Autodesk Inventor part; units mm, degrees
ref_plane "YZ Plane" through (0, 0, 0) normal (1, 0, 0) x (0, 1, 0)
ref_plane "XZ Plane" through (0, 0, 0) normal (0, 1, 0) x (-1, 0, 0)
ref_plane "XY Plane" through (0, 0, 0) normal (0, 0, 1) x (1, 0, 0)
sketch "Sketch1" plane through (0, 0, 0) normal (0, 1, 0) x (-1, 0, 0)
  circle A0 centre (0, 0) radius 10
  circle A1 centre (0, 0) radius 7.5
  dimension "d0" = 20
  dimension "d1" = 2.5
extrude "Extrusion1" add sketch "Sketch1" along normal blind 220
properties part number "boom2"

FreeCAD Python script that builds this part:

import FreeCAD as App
import Part
import Sketcher
Q = App.Units.Quantity

doc = App.newDocument("Part")
params = doc.addObject("Spreadsheet::Sheet", "Params")
for row, (alias, value) in enumerate([
    ("sketch1_diameter", "20 mm"),
    ("sketch1_diameter2", "15 mm"),
    ("pad1_length", "220 mm"),
], start=1):
    params.set(f"A{row}", alias)
    params.set(f"B{row}", "=" + value)
    params.setAlias(f"B{row}", alias)

body = doc.addObject("PartDesign::Body", "Body")

# Sketch on XZ plane
sketch1 = body.newObject("Sketcher::SketchObject", "Sketch")
sketch1.AttachmentSupport = (doc.getObject("XZ_Plane"), [""])
sketch1.MapMode = "FlatFace"
sketch1.addGeometry([
    Part.Circle(App.Vector(0, 0, 0), App.Vector(0, 0, 1), 10),
    Part.Circle(App.Vector(0, 0, 0), App.Vector(0, 0, 1), 8),
], False)
sketch1.addConstraint([
    Sketcher.Constraint("Coincident", 0, 3, -1, 1),
    Sketcher.Constraint("Coincident", 1, 3, -1, 1),
    Sketcher.Constraint("Diameter", 0, Q("20 mm")),
    Sketcher.Constraint("Diameter", 1, Q("15 mm")),
])
sketch1.setExpression("Constraints[2]", "Params.sketch1_diameter")
sketch1.setExpression("Constraints[3]", "Params.sketch1_diameter2")
pad1 = body.newObject("PartDesign::Pad", "Pad")
pad1.Profile = sketch1
pad1.setExpression("Length", "Params.pad1_length")
pad1.Reversed = True

doc.recompute()
